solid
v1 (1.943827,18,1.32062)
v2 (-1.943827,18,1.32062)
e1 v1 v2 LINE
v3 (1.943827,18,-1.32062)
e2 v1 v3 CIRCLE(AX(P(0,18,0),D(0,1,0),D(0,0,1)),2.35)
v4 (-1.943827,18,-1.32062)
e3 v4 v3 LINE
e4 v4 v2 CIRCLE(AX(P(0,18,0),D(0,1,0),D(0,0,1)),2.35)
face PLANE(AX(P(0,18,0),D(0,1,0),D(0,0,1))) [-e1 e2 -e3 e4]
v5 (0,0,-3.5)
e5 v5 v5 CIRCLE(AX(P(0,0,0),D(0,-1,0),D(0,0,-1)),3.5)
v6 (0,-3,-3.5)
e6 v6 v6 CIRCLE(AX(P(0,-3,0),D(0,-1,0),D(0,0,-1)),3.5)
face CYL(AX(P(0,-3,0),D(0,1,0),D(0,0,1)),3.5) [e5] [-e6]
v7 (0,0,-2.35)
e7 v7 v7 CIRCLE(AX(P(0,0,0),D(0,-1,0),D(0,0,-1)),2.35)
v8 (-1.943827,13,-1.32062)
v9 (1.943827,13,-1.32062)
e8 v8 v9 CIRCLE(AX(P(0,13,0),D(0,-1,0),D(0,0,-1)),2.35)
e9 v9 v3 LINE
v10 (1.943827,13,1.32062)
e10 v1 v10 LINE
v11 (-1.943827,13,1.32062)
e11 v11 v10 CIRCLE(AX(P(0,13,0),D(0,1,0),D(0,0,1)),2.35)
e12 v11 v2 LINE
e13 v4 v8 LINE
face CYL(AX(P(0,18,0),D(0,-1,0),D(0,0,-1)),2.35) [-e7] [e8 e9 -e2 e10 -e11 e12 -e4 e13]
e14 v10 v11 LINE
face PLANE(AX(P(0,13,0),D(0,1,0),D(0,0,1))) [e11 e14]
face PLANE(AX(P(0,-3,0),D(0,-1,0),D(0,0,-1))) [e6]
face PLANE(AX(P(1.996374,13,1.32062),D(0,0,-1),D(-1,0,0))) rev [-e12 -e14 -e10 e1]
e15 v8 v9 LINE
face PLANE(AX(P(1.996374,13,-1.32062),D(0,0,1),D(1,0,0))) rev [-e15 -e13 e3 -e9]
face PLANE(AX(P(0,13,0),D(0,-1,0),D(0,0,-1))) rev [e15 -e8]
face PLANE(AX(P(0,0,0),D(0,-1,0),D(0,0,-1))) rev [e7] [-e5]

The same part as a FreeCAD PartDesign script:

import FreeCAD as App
import Part
import Sketcher
from FreeCAD import Vector
Q = App.Units.Quantity


def add_polygon(sketch, points):
    """Adds a closed chain of lines whose ends are joined by coincident constraints."""
    first, n = sketch.GeometryCount, len(points)
    for a, b in zip(points, points[1:] + points[:1]):
        sketch.addGeometry(Part.LineSegment(App.Vector(*a, 0), App.Vector(*b, 0)), False)
    for i in range(n):
        sketch.addConstraint(Sketcher.Constraint("Coincident", first + i, 2, first + (i + 1) % n, 1))

doc = App.newDocument("Part")
params = doc.addObject("Spreadsheet::Sheet", "Params")
for row, (alias, value) in enumerate([
    ("sketch1_diameter", "4.7 mm"),
    ("pad1_length", "18 mm"),
    ("sketch2_diameter", "7 mm"),
    ("pad2_length", "3 mm"),
    ("sketch3_width", "4 mm"),
    ("pocket1_length", "5 mm"),
], start=1):
    params.set(f"A{row}", alias)
    params.set(f"B{row}", "=" + value)
    params.setAlias(f"B{row}", alias)

body = doc.addObject("PartDesign::Body", "Body")

sketch1 = body.newObject("Sketcher::SketchObject", "Sketch")
sketch1.AttachmentSupport = (doc.getObject("XZ_Plane"), [""])
sketch1.MapMode = "FlatFace"
sketch1.addGeometry(Part.Circle(Vector(0, 0, 0), Vector(0, 0, 1), 2.4), False)
sketch1.addConstraint([
    Sketcher.Constraint("Coincident", 0, 3, -1, 1),
    Sketcher.Constraint("Diameter", 0, Q("4.7 mm")),
])
sketch1.setExpression("Constraints[1]", "Params.sketch1_diameter")
pad1 = body.newObject("PartDesign::Pad", "Pad")
pad1.Profile = sketch1
pad1.setExpression("Length", "Params.pad1_length")
pad1.Reversed = True

sketch2 = body.newObject("Sketcher::SketchObject", "Sketch001")
sketch2.AttachmentSupport = (doc.getObject("XZ_Plane"), [""])
sketch2.MapMode = "FlatFace"
sketch2.addGeometry(Part.Circle(Vector(0, 0, 0), Vector(0, 0, 1), 3.5), False)
sketch2.addConstraint([
    Sketcher.Constraint("Coincident", 0, 3, -1, 1),
    Sketcher.Constraint("Diameter", 0, Q("7 mm")),
])
sketch2.setExpression("Constraints[1]", "Params.sketch2_diameter")
pad2 = body.newObject("PartDesign::Pad", "Pad001")
pad2.Profile = sketch2
pad2.setExpression("Length", "Params.pad2_length")

sketch3 = body.newObject("Sketcher::SketchObject", "Sketch002")
sketch3.AttachmentSupport = (doc.getObject("XZ_Plane"), [""])
sketch3.MapMode = "FlatFace"
sketch3.AttachmentOffset = App.Placement(Vector(0, 0, -18), App.Rotation())
add_polygon(sketch3, [(-2, -1.3), (2, -1.3), (2, -2.5), (-2, -2.5)])
add_polygon(sketch3, [(2, 2.5), (2, 1.3), (-2, 1.3), (-2, 2.5)])
sketch3.addConstraint([
    Sketcher.Constraint("Horizontal", 0),
    Sketcher.Constraint("Vertical", 1),
    Sketcher.Constraint("Horizontal", 2),
    Sketcher.Constraint("Vertical", 4),
    Sketcher.Constraint("Horizontal", 5),
    Sketcher.Constraint("Horizontal", 7),
    Sketcher.Constraint("Symmetric", 0, 2, 4, 2, -1),
    Sketcher.Constraint("Symmetric", 2, 2, 6, 2, -1),
    Sketcher.Constraint("Vertical", 3, 2, 5, 2),
    Sketcher.Constraint("DistanceX", 2, 2, 2, 1, Q("4 mm")),
    Sketcher.Constraint("DistanceX", 0, 1, 0, 2, Q("3.993127 mm")),
    Sketcher.Constraint("DistanceY", 1, 2, 1, 1, Q("1.146495 mm")),
    Sketcher.Constraint("DistanceY", 0, 2, -1, 1, Q("1.32062 mm")),
    Sketcher.Constraint("DistanceX", -1, 1, 0, 2, Q("1.996374 mm")),
])
sketch3.setExpression("Constraints[17]", "Params.sketch3_width")
pocket1 = body.newObject("PartDesign::Pocket", "Pocket")
pocket1.Profile = sketch3
pocket1.setExpression("Length", "Params.pocket1_length")
pocket1.Reversed = True

doc.recompute()
